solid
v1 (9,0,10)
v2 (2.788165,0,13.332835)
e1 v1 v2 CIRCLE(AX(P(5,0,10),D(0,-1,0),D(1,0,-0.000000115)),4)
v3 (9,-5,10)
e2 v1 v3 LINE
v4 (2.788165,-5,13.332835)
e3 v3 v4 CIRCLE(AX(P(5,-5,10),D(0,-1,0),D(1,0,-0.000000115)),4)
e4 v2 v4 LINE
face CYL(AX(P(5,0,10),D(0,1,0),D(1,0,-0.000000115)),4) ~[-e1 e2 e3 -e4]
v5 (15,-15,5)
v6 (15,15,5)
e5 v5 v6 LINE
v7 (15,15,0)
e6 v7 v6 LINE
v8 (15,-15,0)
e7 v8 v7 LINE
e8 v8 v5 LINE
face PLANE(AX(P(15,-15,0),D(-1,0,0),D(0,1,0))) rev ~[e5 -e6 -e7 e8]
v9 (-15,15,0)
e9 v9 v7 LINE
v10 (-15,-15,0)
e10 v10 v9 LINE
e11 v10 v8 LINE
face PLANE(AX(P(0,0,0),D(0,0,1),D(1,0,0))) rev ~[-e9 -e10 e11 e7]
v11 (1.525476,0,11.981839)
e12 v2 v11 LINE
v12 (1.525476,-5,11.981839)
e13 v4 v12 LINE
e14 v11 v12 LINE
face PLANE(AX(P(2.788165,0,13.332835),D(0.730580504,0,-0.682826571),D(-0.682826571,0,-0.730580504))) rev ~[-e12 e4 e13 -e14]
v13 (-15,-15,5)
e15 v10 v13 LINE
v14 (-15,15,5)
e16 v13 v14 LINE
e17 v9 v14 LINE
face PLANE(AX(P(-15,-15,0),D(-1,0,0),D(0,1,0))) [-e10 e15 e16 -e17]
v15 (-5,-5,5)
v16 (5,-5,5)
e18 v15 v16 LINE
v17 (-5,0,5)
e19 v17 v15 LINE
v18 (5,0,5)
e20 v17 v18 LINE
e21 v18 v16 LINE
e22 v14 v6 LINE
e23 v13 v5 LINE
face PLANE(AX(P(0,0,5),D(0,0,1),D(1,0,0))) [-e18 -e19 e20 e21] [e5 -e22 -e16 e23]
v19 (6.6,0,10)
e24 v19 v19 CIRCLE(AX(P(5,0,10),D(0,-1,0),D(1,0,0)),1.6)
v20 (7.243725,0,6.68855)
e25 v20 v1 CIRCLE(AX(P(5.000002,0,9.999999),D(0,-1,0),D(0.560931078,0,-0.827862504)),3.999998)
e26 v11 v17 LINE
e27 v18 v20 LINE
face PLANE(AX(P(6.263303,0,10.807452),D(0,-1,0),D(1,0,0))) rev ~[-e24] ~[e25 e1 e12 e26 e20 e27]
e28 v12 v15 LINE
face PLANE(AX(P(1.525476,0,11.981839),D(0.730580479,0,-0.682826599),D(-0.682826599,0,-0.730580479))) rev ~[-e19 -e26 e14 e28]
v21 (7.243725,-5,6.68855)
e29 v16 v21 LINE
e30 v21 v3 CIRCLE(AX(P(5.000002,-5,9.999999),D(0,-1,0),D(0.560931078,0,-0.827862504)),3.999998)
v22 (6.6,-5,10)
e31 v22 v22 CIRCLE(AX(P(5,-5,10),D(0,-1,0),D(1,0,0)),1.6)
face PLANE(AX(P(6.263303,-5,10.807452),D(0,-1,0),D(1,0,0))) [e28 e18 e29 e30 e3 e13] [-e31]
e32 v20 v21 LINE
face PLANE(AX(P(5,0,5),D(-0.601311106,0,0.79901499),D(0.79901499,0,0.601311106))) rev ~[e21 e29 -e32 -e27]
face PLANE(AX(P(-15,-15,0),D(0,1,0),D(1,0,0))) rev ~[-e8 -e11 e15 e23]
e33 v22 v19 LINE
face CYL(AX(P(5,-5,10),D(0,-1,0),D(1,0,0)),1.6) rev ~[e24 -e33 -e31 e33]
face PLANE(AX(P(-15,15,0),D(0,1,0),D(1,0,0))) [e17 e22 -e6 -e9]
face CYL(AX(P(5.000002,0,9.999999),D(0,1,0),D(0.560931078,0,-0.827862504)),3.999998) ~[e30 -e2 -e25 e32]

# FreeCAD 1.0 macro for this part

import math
import FreeCAD as App
import Part
import Sketcher
from FreeCAD import Vector

doc = App.newDocument("Part")
body = doc.addObject("PartDesign::Body", "Body")

# Sketch on XY plane
sketch1 = doc.addObject("Sketcher::SketchObject", "Sketch")
body.addObject(sketch1)
sketch1.AttachmentSupport = (doc.XY_Plane, [""])
sketch1.MapMode = "FlatFace"
sketch1.addGeometry([
    Part.LineSegment(Vector(-15, 15, 0), Vector(-15, -15, 0)),
    Part.LineSegment(Vector(-15, -15, 0), Vector(15, -15, 0)),
    Part.LineSegment(Vector(15, -15, 0), Vector(15, 15, 0)),
    Part.LineSegment(Vector(15, 15, 0), Vector(-15, 15, 0)),
], False)
sketch1.addConstraint([
    Sketcher.Constraint("Coincident", 0, 2, 1, 1),
    Sketcher.Constraint("Coincident", 1, 2, 2, 1),
    Sketcher.Constraint("Coincident", 2, 2, 3, 1),
    Sketcher.Constraint("Coincident", 3, 2, 0, 1),
    Sketcher.Constraint("Vertical", 0),
    Sketcher.Constraint("Horizontal", 1),
    Sketcher.Constraint("Vertical", 2),
    Sketcher.Constraint("Horizontal", 3),
    Sketcher.Constraint("Symmetric", 0, 2, 2, 2, -1, 1),
    Sketcher.Constraint("Equal", 3, 0),
    Sketcher.Constraint("DistanceX", 1, 1, 1, 2, 30.0),
])
pad1 = doc.addObject("PartDesign::Pad", "Pad")
body.addObject(pad1)
pad1.Profile = sketch1
pad1.Length = 5

# Sketch on XZ plane
sketch2 = doc.addObject("Sketcher::SketchObject", "Sketch001")
body.addObject(sketch2)
sketch2.AttachmentSupport = (doc.XZ_Plane, [""])
sketch2.MapMode = "FlatFace"
sketch2.addGeometry([
    Part.ArcOfCircle(Part.Circle(Vector(5.000002, 9.999999, 0), Vector(0, 0, 1), 3.999998), math.radians(-55.879788), math.radians(0.000018)),  # 0
    Part.ArcOfCircle(Part.Circle(Vector(5, 10, 0), Vector(0, 0, 1), 4), math.radians(-0.000007), math.radians(123.570233)),  # 1
    Part.LineSegment(Vector(2.788165, 13.332835, 0), Vector(1.525476, 11.981839, 0)),  # 2
    Part.LineSegment(Vector(1.525476, 11.981839, 0), Vector(-5, 5, 0)),  # 3
    Part.LineSegment(Vector(-5, 5, 0), Vector(5, 5, 0)),  # 4
    Part.LineSegment(Vector(5, 5, 0), Vector(7.243725, 6.68855, 0)),  # 5
], False)
sketch2.addConstraint([
    Sketcher.Constraint("Tangent", 0, 2, 1, 1),
    Sketcher.Constraint("Coincident", 1, 2, 2, 1),
    Sketcher.Constraint("Coincident", 2, 2, 3, 1),
    Sketcher.Constraint("Coincident", 3, 2, 4, 1),
    Sketcher.Constraint("Coincident", 4, 2, 5, 1),
    Sketcher.Constraint("Coincident", 5, 2, 0, 1),
    Sketcher.Constraint("Horizontal", 4),
    Sketcher.Constraint("Equal", 0, 1),
    Sketcher.Constraint("Parallel", 2, 3),
    Sketcher.Constraint("Horizontal", 1, 3, 0, 2),
    Sketcher.Constraint("Vertical", 1, 3, 4, 2),
    Sketcher.Constraint("Radius", 0, 3.999998),
    Sketcher.Constraint("DistanceX", 4, 1, 4, 2, 10.0),
    Sketcher.Constraint("DistanceX", -1, 1, 0, 3, 5.000002),
    Sketcher.Constraint("DistanceY", -1, 1, 0, 3, 9.999999),
    Sketcher.Constraint("DistanceY", -1, 1, 3, 2, 5.0),
    Sketcher.Constraint("Distance", 2, 1.849209),
    Sketcher.Constraint("DistanceY", -1, 1, 2, 2, 11.981839),
    Sketcher.Constraint("DistanceY", -1, 1, 5, 2, 6.68855),
])
pad2 = doc.addObject("PartDesign::Pad", "Pad001")
body.addObject(pad2)
pad2.Profile = sketch2
pad2.Length = 5

# Sketch on XZ plane
sketch3 = doc.addObject("Sketcher::SketchObject", "Sketch002")
body.addObject(sketch3)
sketch3.AttachmentSupport = (doc.XZ_Plane, [""])
sketch3.MapMode = "FlatFace"
sketch3.AttachmentOffset = App.Placement(Vector(0, 0, 5), App.Rotation())
sketch3.addGeometry(Part.Circle(Vector(5, 10, 0), Vector(0, 0, 1), 1.6), False)
sketch3.addConstraint([
    Sketcher.Constraint("Diameter", 0, 3.2),
    Sketcher.Constraint("DistanceX", -1, 1, 0, 3, 5.0),
    Sketcher.Constraint("DistanceY", -1, 1, 0, 3, 10.0),
])
pocket1 = doc.addObject("PartDesign::Pocket", "Pocket")
body.addObject(pocket1)
pocket1.Profile = sketch3
pocket1.Type = "ThroughAll"

doc.recompute()
